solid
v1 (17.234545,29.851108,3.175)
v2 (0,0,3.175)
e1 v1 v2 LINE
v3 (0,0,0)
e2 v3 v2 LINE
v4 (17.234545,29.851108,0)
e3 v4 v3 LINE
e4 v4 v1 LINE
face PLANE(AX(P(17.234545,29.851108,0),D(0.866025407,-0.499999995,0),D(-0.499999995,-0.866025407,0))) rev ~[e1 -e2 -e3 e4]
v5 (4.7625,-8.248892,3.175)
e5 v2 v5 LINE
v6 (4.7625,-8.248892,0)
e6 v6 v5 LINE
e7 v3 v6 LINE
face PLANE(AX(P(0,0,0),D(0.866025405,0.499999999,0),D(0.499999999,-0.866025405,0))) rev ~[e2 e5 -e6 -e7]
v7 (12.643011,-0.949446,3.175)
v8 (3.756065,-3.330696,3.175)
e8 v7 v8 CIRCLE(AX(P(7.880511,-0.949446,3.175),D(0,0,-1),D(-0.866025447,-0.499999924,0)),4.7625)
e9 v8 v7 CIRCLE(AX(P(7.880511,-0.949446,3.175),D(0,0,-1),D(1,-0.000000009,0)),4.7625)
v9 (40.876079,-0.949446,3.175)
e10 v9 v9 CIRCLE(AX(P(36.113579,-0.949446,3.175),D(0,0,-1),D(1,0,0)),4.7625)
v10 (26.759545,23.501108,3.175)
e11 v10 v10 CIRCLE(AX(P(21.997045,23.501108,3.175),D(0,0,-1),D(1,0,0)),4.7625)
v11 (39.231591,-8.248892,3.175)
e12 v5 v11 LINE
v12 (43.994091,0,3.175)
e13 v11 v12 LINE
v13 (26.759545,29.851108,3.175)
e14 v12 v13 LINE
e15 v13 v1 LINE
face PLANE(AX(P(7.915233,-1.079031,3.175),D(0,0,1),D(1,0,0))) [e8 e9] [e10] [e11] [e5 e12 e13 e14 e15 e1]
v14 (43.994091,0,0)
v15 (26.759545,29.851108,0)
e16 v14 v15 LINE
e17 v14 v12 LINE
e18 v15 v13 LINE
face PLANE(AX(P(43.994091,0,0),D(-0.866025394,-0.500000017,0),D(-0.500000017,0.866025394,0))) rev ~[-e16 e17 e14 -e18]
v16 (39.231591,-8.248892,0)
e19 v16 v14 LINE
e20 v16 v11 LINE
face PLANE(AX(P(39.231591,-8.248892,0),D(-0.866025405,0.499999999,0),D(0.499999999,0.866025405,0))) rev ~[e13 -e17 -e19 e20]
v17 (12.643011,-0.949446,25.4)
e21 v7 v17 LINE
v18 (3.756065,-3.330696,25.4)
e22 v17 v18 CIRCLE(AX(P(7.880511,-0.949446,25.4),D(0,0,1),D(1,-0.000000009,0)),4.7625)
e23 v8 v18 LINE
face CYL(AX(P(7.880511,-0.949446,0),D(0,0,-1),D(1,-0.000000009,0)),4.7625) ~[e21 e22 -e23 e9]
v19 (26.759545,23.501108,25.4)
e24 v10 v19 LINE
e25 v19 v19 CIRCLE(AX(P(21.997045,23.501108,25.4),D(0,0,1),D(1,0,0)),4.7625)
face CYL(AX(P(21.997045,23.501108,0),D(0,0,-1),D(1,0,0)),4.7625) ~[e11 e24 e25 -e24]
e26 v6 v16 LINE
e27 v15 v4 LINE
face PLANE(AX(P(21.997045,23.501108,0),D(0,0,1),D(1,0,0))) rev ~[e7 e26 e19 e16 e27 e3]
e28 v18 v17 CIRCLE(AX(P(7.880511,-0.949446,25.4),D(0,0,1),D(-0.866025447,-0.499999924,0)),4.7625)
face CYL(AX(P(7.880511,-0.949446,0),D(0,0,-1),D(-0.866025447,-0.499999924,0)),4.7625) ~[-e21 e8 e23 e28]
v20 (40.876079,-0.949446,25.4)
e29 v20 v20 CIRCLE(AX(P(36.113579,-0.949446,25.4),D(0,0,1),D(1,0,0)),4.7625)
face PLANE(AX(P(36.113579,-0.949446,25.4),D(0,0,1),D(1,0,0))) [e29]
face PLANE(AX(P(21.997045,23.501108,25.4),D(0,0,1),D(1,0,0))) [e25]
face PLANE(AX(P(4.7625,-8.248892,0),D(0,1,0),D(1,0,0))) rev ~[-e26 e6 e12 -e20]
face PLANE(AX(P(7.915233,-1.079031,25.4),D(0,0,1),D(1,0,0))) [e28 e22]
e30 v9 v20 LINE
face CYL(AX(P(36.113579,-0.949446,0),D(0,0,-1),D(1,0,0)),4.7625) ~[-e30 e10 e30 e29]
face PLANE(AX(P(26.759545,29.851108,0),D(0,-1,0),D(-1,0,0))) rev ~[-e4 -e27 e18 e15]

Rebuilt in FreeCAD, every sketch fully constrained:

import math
import FreeCAD as App
import Part
import Sketcher
from FreeCAD import Vector
Q = App.Units.Quantity


def add_polygon(sketch, points):
    """Adds a closed chain of lines whose ends are joined by coincident constraints."""
    first, n = sketch.GeometryCount, len(points)
    for a, b in zip(points, points[1:] + points[:1]):
        sketch.addGeometry(Part.LineSegment(App.Vector(*a, 0), App.Vector(*b, 0)), False)
    for i in range(n):
        sketch.addConstraint(Sketcher.Constraint("Coincident", first + i, 2, first + (i + 1) % n, 1))

doc = App.newDocument("Part")
body = doc.addObject("PartDesign::Body", "Body")

sketch1 = body.newObject("Sketcher::SketchObject", "Sketch")
sketch1.AttachmentSupport = (doc.getObject("XY_Plane"), [""])
sketch1.MapMode = "FlatFace"
add_polygon(sketch1, [(17.234545, 29.851108), (0, 0), (4.7625, -8.248892), (39.231591, -8.248892), (43.994091, 0), (26.759545, 29.851108)])
sketch1.addConstraint(Sketcher.Constraint("Horizontal", 2))
sketch1.addConstraint(Sketcher.Constraint("Horizontal", 5))
sketch1.addConstraint(Sketcher.Constraint("Coincident", 0, 2, -1, 1))
sketch1.addConstraint(Sketcher.Constraint("PointOnObject", 3, 2, -1))
sketch1.addConstraint(Sketcher.Constraint("Parallel", 0, 3))
sketch1.addConstraint(Sketcher.Constraint("Parallel", 1, 4))
sketch1.addConstraint(Sketcher.Constraint("Equal", 1, 3))
sketch1.addConstraint(Sketcher.Constraint("Angle", 0, Q("-120 deg")))
sketch1.addConstraint(Sketcher.Constraint("DistanceY", 2, 2, 4, 2, Q("1.5 in")))
sketch1.addConstraint(Sketcher.Constraint("DistanceX", 5, 2, 5, 1, Q("0.375 in")))
sketch1.addConstraint(Sketcher.Constraint("Distance", 1, Q("0.375 in")))
pad1 = body.newObject("PartDesign::Pad", "Pad")
pad1.Profile = sketch1
pad1.Length = Q("0.125 in")

sketch2 = body.newObject("Sketcher::SketchObject", "Sketch001")
sketch2.AttachmentSupport = (doc.getObject("XY_Plane"), [""])
sketch2.MapMode = "FlatFace"
sketch2.addGeometry(Part.Circle(Vector(21.997045, 23.501108, 0), Vector(0, 0, 1), 4.7625), False)
sketch2.addGeometry(Part.Circle(Vector(36.113579, -0.949446, 0), Vector(0, 0, 1), 4.7625), False)
sketch2.addGeometry(Part.ArcOfCircle(Part.Circle(Vector(7.880511, -0.949446, 0), Vector(0, 0, 1), 4.7625), math.radians(0), math.radians(210)), False)
sketch2.addGeometry(Part.ArcOfCircle(Part.Circle(Vector(7.880511, -0.949446, 0), Vector(0, 0, 1), 4.7625), math.radians(-150.000005), math.radians(0.000005)), False)
sketch2.addConstraint(Sketcher.Constraint("Tangent", 2, 1, 3, 2))
sketch2.addConstraint(Sketcher.Constraint("Coincident", 3, 1, 2, 2))
sketch2.addConstraint(Sketcher.Constraint("Equal", 0, 1))
sketch2.addConstraint(Sketcher.Constraint("Equal", 1, 2))
sketch2.addConstraint(Sketcher.Constraint("Horizontal", 1, 3, 2, 3))
sketch2.addConstraint(Sketcher.Constraint("Horizontal", 3, 3, 2, 1))
sketch2.addConstraint(Sketcher.Constraint("Diameter", 0, Q("0.375 in")))
sketch2.addConstraint(Sketcher.Constraint("DistanceY", 3, 1, 3, 3, Q("0.09375 in")))
sketch2.addConstraint(Sketcher.Constraint("DistanceX", -1, 1, 1, 3, Q("36.113579 mm")))
sketch2.addConstraint(Sketcher.Constraint("DistanceX", -1, 1, 2, 3, Q("7.880511 mm")))
sketch2.addConstraint(Sketcher.Constraint("DistanceX", 3, 1, 0, 3, Q("18.24098 mm")))
sketch2.addConstraint(Sketcher.Constraint("DistanceY", -1, 1, 0, 3, Q("23.501108 mm")))
sketch2.addConstraint(Sketcher.Constraint("DistanceY", 1, 3, -1, 1, Q("0.949446 mm")))
pad2 = body.newObject("PartDesign::Pad", "Pad001")
pad2.Profile = sketch2
pad2.Length = Q("1 in")

doc.recompute()
